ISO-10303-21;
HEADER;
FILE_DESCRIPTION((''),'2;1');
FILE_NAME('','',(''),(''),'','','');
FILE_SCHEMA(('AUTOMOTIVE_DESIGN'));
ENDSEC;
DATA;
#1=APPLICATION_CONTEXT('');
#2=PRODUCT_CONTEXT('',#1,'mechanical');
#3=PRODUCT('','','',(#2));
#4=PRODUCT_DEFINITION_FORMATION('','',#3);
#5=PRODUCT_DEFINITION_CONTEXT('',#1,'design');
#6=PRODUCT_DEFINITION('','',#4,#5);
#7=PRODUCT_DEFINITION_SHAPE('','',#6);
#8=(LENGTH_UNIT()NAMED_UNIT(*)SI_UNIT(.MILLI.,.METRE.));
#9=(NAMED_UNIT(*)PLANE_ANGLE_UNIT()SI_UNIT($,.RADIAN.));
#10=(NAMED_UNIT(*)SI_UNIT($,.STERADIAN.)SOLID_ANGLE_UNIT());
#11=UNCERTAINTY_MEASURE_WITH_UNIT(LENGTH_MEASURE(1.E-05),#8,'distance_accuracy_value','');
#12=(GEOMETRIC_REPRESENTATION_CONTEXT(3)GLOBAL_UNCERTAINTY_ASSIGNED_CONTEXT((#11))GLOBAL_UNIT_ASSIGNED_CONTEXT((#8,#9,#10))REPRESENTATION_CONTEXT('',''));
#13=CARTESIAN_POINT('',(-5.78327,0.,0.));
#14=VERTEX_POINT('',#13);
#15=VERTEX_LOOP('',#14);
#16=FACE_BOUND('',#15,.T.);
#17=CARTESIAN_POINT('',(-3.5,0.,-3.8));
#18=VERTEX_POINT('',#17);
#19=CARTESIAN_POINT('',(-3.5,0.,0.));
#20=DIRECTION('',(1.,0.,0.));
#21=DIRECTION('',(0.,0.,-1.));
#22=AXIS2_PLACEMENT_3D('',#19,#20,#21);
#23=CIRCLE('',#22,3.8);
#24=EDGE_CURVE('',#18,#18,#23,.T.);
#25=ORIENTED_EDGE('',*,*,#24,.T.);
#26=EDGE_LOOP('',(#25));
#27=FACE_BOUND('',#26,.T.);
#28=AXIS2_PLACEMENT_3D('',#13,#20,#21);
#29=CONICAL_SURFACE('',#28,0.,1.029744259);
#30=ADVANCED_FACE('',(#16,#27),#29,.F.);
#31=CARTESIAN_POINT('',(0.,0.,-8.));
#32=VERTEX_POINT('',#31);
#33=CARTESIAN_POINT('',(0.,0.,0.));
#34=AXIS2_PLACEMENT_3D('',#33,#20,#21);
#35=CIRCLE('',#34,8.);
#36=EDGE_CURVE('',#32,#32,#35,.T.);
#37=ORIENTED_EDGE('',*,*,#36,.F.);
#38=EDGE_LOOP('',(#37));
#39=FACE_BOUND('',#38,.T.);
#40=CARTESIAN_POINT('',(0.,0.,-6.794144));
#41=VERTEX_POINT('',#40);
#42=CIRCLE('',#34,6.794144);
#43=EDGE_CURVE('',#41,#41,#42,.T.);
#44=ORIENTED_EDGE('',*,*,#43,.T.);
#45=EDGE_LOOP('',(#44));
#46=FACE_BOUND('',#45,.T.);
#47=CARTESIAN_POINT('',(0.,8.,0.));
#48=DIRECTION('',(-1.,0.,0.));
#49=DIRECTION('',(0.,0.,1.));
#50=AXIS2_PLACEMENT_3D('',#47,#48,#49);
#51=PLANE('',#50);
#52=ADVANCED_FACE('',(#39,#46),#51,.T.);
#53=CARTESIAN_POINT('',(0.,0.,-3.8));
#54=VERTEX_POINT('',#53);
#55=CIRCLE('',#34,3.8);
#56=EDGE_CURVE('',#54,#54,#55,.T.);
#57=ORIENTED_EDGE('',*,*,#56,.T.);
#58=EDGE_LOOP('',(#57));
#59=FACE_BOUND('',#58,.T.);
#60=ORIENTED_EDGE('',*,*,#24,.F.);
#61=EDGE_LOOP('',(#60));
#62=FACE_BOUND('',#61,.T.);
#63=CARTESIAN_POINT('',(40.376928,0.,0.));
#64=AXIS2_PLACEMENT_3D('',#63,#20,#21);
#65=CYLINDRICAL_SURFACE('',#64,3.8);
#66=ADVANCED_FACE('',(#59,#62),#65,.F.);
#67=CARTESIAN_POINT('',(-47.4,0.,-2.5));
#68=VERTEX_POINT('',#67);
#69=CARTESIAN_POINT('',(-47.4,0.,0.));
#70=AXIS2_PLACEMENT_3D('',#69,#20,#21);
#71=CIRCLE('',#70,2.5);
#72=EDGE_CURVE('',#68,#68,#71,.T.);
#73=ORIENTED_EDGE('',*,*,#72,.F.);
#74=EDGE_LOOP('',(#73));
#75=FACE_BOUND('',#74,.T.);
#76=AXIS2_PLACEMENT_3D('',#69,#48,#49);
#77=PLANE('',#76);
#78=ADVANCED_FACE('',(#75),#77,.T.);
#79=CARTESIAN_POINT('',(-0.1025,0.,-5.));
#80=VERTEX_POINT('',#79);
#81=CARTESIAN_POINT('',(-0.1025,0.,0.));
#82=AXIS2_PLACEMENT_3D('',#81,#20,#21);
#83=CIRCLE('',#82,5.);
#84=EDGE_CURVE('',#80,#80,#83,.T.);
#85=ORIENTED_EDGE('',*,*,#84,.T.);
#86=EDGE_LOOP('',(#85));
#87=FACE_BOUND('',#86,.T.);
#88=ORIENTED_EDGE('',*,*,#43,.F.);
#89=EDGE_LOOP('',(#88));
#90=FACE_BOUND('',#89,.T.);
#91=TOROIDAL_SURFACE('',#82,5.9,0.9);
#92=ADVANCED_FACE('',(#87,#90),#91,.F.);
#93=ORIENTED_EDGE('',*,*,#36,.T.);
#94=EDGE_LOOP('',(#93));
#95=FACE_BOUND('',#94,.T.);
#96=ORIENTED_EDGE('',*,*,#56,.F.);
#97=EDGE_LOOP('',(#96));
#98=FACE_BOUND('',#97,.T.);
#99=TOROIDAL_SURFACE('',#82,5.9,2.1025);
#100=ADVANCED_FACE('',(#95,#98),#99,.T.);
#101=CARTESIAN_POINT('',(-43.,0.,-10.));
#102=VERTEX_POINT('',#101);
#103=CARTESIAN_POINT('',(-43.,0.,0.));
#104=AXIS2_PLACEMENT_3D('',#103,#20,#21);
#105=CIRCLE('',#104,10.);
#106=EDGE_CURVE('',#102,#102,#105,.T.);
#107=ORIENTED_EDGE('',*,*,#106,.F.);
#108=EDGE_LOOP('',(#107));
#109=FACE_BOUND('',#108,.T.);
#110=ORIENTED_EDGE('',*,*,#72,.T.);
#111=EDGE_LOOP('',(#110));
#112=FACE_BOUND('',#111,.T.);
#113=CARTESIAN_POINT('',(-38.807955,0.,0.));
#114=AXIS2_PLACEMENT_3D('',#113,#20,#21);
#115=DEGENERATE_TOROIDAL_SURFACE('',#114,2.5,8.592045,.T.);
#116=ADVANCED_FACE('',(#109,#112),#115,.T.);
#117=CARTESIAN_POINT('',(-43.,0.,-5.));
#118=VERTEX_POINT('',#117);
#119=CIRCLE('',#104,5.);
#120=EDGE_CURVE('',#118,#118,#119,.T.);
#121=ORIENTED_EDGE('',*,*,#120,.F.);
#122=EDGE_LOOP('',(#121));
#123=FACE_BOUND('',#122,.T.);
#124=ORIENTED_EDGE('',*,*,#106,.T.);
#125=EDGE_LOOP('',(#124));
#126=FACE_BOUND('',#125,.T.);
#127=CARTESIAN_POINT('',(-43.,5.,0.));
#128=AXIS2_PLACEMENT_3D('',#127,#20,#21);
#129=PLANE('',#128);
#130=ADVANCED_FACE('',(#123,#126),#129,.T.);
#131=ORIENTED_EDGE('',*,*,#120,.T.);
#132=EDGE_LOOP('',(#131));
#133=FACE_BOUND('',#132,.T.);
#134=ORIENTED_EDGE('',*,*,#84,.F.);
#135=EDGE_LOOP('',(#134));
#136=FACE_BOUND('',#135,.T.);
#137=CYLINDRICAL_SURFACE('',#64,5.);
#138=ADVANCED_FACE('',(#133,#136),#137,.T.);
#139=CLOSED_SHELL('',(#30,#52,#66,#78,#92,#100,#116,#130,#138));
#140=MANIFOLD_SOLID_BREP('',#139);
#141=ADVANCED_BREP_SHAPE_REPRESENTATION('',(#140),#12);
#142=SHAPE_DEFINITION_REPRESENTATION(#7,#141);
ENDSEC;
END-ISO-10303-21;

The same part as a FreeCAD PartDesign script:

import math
import FreeCAD as App
import Part
import Sketcher

V = App.Vector
Q = App.Units.Quantity

doc = App.newDocument("Part")
params = doc.addObject("Spreadsheet::Sheet", "Params")
for row, (alias, value) in enumerate([
    ("sketch1_radius", "0.9 mm"),
    ("sketch1_height", "5 mm"),
    ("sketch1_width", "3.5 mm"),
    ("sketch1_height2", "2.5 mm"),
    ("revolution_angle", "360 deg"),
], start=1):
    params.set(f"A{row}", alias)
    params.set(f"B{row}", "=" + value)
    params.setAlias(f"B{row}", alias)

body = doc.addObject("PartDesign::Body", "Body")

sketch1 = doc.addObject("Sketcher::SketchObject", "Sketch")
body.addObject(sketch1)
sketch1.AttachmentSupport = (doc.XY_Plane, [""])
sketch1.MapMode = "FlatFace"
sketch1.addGeometry([
    Part.LineSegment(V(0, 8, 0), V(0, 6.8, 0)),
    Part.ArcOfCircle(Part.Circle(V(-0.1, 5.9, 0), V(0, 0, 1), 0.9), math.radians(-90), math.radians(83)),
    Part.LineSegment(V(-0.1, 5, 0), V(-43, 5, 0)),
    Part.LineSegment(V(-43, 5, 0), V(-43, 10, 0)),
    Part.ArcOfCircle(Part.Circle(V(-38.8, 2.5, 0), V(0, 0, 1), 8.6), math.radians(119), math.radians(180)),
    Part.LineSegment(V(-47.4, 2.5, 0), V(-47.4, 0, 0)),
    Part.LineSegment(V(-47.4, 0, 0), V(-5.8, 0, 0)),
    Part.LineSegment(V(-5.8, 0, 0), V(-3.5, 3.8, 0)),
    Part.LineSegment(V(-3.5, 3.8, 0), V(0, 3.8, 0)),
    Part.ArcOfCircle(Part.Circle(V(-0.1, 5.9, 0), V(0, 0, 1), 2.1), math.radians(-87), math.radians(87)),
], False)
sketch1.addConstraint([
    Sketcher.Constraint("Coincident", 0, 2, 1, 2),
    Sketcher.Constraint("Tangent", 1, 1, 2, 1),
    Sketcher.Constraint("Coincident", 2, 2, 3, 1),
    Sketcher.Constraint("Coincident", 3, 2, 4, 1),
    Sketcher.Constraint("Tangent", 4, 2, 5, 1),
    Sketcher.Constraint("Coincident", 5, 2, 6, 1),
    Sketcher.Constraint("Coincident", 6, 2, 7, 1),
    Sketcher.Constraint("Coincident", 7, 2, 8, 1),
    Sketcher.Constraint("Coincident", 8, 2, 9, 1),
    Sketcher.Constraint("Coincident", 9, 2, 0, 1),
    Sketcher.Constraint("Vertical", 0),
    Sketcher.Constraint("Horizontal", 2),
    Sketcher.Constraint("Vertical", 3),
    Sketcher.Constraint("Vertical", 5),
    Sketcher.Constraint("Horizontal", 6),
    Sketcher.Constraint("Horizontal", 8),
    Sketcher.Constraint("Coincident", 9, 3, 1, 3),
    Sketcher.Constraint("PointOnObject", 0, 2, -2),
    Sketcher.Constraint("PointOnObject", 5, 2, -1),
    Sketcher.Constraint("PointOnObject", 8, 2, -2),
    Sketcher.Constraint("Radius", 1, 0.9),
    Sketcher.Constraint("DistanceY", 3, 1, 3, 2, 5.0),
    Sketcher.Constraint("Angle", 7, Q("59 deg")),
    Sketcher.Constraint("DistanceX", 8, 1, 8, 2, 3.5),
    Sketcher.Constraint("DistanceY", 5, 2, 5, 1, 2.5),
    Sketcher.Constraint("DistanceY", -1, 1, 1, 1, 5.0),
    Sketcher.Constraint("DistanceX", 2, 2, -1, 1, 43.0),
    Sketcher.Constraint("DistanceY", -1, 1, 9, 2, 8.0),
    Sketcher.Constraint("DistanceX", 4, 2, -1, 1, 47.4),
    Sketcher.Constraint("Radius", 9, 2.1025),
])
sketch1.setExpression("Constraints[20]", "Params.sketch1_radius")
sketch1.setExpression("Constraints[21]", "Params.sketch1_height")
sketch1.setExpression("Constraints[23]", "Params.sketch1_width")
sketch1.setExpression("Constraints[24]", "Params.sketch1_height2")
revolution = doc.addObject("PartDesign::Revolution", "Revolution")
body.addObject(revolution)
revolution.Profile = sketch1
revolution.ReferenceAxis = (sketch1, ["H_Axis"])
revolution.setExpression("Angle", "Params.revolution_angle")

doc.recompute()
